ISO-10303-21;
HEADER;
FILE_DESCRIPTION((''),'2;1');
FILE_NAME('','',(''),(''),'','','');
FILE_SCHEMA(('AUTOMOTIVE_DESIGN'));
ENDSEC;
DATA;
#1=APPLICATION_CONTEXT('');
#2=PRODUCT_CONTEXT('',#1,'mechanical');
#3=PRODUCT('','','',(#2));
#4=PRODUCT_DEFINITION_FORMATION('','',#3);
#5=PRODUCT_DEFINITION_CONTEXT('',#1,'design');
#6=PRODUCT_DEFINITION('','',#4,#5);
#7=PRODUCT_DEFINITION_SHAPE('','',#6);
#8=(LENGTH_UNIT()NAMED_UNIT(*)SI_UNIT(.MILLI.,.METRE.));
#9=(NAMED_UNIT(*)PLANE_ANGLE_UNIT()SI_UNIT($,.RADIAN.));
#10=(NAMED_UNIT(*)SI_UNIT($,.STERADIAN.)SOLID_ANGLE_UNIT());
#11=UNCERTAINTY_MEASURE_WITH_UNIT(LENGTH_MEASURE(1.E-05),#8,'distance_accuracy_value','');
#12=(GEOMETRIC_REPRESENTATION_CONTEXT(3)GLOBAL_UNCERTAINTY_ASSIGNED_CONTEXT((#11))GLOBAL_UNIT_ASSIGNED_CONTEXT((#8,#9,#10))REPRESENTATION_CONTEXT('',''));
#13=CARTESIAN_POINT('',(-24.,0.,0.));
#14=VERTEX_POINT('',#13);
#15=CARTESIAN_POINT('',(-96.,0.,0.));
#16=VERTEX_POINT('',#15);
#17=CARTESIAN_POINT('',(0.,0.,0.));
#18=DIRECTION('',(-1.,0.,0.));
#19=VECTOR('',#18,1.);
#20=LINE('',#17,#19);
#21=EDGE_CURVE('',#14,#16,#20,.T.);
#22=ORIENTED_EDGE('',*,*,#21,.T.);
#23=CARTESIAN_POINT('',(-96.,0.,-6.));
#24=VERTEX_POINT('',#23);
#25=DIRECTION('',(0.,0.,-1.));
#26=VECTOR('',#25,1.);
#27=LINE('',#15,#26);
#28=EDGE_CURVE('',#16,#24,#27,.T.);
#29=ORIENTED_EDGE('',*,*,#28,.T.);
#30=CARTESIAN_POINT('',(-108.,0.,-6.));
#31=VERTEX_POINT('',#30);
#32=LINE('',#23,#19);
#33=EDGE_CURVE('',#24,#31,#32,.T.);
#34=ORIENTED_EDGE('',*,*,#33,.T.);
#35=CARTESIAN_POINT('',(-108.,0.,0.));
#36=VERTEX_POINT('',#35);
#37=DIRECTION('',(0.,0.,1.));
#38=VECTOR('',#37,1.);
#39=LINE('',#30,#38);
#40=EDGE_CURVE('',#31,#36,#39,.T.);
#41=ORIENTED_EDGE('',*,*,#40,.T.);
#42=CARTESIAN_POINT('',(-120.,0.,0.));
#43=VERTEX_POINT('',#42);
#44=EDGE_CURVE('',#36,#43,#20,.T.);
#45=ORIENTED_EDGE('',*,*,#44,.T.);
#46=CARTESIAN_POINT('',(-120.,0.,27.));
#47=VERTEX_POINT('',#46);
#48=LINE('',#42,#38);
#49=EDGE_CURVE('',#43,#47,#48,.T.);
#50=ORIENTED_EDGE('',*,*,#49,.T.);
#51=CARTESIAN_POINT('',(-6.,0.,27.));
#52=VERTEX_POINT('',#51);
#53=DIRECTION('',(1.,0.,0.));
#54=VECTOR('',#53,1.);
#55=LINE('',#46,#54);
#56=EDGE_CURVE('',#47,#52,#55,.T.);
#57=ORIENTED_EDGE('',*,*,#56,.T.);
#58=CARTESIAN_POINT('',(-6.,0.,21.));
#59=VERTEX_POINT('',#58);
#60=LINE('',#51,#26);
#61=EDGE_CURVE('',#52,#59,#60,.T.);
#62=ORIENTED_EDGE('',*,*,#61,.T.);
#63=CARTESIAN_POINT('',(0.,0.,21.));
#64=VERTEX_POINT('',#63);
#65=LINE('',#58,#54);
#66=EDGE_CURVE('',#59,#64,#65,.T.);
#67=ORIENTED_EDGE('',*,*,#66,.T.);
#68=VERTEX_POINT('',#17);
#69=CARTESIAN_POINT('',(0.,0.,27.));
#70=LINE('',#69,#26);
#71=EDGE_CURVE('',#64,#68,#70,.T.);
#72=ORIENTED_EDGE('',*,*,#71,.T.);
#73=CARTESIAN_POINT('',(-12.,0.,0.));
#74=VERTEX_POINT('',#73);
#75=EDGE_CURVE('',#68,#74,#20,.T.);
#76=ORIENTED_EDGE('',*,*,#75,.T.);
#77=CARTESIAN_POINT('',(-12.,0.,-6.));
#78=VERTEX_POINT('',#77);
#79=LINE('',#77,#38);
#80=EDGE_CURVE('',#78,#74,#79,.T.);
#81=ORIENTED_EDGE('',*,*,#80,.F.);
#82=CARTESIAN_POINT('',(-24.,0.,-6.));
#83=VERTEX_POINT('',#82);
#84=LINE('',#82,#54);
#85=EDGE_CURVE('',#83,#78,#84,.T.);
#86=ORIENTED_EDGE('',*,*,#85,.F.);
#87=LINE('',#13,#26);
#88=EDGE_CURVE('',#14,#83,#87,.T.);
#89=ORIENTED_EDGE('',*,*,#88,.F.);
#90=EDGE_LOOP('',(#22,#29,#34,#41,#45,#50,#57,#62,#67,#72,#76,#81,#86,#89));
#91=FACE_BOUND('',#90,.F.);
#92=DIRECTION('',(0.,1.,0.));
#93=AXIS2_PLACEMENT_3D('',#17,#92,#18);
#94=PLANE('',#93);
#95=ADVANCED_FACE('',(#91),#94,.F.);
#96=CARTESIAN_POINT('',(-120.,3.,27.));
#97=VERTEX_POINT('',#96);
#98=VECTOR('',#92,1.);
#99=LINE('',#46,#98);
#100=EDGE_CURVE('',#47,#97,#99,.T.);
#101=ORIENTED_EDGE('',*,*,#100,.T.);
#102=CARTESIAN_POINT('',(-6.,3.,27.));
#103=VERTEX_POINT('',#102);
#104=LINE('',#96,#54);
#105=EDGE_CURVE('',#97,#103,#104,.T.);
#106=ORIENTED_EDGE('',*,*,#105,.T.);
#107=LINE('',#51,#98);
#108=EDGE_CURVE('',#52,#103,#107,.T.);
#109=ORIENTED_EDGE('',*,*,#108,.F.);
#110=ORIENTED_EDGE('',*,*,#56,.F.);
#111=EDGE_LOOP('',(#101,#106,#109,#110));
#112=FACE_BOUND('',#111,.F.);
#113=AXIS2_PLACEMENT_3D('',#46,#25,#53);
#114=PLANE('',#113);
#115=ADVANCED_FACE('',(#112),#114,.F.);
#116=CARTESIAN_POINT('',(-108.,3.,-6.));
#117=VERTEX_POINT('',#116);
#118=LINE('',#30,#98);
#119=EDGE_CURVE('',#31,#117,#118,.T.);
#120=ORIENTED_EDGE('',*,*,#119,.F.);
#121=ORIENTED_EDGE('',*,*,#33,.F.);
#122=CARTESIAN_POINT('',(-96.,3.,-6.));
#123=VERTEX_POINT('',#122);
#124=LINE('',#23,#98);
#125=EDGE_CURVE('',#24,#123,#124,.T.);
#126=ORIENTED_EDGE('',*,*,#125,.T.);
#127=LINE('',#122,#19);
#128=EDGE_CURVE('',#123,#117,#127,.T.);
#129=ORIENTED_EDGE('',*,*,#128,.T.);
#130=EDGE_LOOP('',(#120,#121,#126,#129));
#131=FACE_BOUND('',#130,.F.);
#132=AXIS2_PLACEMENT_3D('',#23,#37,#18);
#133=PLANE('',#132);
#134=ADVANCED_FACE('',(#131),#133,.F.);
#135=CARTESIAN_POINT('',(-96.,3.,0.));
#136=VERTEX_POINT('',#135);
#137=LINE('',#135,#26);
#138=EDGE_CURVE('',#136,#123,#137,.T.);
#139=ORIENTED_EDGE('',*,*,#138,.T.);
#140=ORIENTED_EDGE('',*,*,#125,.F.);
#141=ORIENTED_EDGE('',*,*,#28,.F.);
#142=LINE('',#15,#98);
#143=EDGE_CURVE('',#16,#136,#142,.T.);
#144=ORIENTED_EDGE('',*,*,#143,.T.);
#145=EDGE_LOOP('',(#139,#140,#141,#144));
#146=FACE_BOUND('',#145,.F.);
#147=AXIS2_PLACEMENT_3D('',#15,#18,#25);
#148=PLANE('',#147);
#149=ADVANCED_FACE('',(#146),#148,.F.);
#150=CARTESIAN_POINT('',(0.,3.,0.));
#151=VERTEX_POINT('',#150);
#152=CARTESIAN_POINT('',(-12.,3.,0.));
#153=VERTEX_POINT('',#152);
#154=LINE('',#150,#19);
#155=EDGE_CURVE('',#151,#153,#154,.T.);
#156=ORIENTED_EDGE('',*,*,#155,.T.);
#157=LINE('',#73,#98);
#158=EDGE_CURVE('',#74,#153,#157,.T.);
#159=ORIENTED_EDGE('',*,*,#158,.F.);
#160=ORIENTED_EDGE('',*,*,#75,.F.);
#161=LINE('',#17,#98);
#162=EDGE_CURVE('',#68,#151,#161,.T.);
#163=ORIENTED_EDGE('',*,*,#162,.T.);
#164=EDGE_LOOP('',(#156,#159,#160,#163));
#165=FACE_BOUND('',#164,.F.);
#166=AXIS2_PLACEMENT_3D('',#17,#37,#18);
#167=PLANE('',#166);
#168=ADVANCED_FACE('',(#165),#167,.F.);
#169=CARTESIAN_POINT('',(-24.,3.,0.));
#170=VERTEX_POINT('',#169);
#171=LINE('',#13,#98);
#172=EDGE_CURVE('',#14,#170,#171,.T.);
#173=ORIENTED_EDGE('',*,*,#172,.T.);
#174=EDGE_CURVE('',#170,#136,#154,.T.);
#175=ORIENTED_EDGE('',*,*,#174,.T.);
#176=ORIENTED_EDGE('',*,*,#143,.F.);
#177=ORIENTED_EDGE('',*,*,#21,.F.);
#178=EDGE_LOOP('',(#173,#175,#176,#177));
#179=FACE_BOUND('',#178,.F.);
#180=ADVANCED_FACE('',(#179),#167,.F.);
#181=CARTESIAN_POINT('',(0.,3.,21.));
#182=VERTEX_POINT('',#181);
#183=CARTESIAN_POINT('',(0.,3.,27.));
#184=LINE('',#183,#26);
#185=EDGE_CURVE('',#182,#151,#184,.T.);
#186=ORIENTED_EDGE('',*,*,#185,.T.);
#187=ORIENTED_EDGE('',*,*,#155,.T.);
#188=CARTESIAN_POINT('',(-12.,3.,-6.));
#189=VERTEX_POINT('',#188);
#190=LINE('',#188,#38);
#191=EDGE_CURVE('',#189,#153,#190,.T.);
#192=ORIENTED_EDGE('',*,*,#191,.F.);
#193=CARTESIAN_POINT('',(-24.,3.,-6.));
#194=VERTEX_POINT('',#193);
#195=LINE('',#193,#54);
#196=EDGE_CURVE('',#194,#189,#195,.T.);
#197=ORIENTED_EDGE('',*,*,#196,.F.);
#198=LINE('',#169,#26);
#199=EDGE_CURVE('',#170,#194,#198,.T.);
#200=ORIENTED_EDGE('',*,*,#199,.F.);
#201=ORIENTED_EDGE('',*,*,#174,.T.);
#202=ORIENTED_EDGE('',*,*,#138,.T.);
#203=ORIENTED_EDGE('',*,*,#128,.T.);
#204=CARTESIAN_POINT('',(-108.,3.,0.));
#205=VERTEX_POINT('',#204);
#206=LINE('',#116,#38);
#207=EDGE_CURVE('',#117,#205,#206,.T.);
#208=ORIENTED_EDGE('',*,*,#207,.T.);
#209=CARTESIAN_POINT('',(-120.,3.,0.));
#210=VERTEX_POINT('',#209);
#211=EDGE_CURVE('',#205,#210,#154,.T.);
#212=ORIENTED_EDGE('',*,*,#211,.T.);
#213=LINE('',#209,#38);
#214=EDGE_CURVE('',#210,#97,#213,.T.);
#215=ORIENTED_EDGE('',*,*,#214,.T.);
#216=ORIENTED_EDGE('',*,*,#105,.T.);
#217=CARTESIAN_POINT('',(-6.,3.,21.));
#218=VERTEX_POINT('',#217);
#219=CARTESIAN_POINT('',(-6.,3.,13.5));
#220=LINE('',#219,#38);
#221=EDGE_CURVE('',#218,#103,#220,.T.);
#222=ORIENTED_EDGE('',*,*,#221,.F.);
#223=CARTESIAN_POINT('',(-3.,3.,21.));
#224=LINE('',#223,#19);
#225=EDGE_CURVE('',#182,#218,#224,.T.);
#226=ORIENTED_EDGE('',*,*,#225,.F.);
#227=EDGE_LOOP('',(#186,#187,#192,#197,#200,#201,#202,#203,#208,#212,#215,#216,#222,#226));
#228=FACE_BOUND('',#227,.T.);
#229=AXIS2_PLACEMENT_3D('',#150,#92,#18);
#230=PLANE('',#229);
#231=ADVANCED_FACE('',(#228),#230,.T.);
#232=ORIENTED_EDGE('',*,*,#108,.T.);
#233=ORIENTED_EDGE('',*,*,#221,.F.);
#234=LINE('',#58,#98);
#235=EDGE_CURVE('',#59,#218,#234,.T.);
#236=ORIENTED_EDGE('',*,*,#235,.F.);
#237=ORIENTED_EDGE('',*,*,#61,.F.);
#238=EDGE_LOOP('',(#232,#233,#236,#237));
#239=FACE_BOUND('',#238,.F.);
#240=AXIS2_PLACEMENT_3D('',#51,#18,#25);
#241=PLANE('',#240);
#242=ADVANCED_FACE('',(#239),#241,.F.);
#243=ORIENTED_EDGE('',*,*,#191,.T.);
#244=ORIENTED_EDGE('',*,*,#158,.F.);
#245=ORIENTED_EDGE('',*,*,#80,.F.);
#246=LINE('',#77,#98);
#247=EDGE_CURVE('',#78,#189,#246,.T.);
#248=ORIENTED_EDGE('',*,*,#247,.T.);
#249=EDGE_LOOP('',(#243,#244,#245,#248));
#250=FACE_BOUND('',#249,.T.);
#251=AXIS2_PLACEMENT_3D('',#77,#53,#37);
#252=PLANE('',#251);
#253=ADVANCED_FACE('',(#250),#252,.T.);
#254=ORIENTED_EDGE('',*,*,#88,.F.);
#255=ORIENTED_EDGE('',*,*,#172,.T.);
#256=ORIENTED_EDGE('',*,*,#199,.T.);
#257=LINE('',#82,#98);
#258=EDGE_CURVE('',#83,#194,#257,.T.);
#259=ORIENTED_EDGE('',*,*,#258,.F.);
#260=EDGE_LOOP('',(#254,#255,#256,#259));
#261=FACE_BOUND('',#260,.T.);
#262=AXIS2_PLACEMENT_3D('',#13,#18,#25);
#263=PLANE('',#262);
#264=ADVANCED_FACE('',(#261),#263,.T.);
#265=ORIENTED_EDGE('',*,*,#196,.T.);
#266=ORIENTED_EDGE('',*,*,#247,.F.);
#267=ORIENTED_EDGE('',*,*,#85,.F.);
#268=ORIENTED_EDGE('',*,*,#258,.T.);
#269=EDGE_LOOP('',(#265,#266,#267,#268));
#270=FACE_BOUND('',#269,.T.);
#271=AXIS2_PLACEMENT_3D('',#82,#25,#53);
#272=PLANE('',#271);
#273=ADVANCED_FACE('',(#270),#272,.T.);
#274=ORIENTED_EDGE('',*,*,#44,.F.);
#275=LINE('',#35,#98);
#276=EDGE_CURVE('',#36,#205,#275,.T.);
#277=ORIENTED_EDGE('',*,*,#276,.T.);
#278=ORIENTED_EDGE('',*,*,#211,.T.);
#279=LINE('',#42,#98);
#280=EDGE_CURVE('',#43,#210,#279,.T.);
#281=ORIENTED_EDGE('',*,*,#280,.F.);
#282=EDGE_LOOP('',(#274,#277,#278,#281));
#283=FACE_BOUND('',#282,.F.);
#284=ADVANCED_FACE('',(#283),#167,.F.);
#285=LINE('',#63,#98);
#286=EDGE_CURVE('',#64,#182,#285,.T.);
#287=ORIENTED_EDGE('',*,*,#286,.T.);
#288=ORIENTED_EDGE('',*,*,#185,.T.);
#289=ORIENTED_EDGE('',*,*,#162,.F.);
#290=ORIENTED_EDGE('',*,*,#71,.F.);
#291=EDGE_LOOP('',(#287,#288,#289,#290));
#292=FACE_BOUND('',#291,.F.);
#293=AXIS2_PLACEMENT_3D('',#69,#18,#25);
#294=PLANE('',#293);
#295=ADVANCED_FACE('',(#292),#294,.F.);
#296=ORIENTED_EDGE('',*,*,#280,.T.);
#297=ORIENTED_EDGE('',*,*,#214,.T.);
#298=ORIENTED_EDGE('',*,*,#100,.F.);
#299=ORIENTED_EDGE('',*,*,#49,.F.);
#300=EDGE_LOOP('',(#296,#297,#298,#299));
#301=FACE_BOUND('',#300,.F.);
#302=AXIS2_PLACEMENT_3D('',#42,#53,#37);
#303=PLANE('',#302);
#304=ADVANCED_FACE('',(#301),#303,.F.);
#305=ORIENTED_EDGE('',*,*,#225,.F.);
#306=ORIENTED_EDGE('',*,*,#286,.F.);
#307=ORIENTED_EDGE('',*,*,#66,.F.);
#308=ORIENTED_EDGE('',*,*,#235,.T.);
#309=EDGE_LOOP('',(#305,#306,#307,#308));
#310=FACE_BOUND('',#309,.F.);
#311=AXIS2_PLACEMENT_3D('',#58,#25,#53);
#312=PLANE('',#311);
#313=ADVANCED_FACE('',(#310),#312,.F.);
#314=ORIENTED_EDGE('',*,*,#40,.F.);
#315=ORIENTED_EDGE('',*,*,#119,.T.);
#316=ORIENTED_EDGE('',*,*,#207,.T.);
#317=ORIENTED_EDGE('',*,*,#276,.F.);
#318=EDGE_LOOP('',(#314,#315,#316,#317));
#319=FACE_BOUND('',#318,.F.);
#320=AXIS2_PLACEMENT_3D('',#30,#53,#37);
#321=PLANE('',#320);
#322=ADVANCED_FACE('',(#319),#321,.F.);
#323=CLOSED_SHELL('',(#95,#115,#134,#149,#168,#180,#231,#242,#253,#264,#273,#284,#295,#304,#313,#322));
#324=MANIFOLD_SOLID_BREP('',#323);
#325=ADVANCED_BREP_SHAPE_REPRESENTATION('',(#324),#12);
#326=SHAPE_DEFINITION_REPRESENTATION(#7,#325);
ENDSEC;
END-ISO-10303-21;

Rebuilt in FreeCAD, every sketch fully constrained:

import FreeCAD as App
import Part
import Sketcher
from FreeCAD import Vector
Q = App.Units.Quantity


def add_polygon(sketch, points):
    """Adds a closed chain of lines whose ends are joined by coincident constraints."""
    first, n = sketch.GeometryCount, len(points)
    for a, b in zip(points, points[1:] + points[:1]):
        sketch.addGeometry(Part.LineSegment(App.Vector(*a, 0), App.Vector(*b, 0)), False)
    for i in range(n):
        sketch.addConstraint(Sketcher.Constraint("Coincident", first + i, 2, first + (i + 1) % n, 1))

doc = App.newDocument("Part")
body = doc.addObject("PartDesign::Body", "Body")

# Sketch on XZ plane
sketch1 = body.newObject("Sketcher::SketchObject", "Sketch")
sketch1.AttachmentSupport = (doc.getObject("XZ_Plane"), [""])
sketch1.MapMode = "FlatFace"
add_polygon(sketch1, [(0, 27), (0, 0), (-120, 0), (-120, 27)])  # lines 0-3
sketch1.addConstraint([
    Sketcher.Constraint("Vertical", 0),
    Sketcher.Constraint("Horizontal", 1),
    Sketcher.Constraint("Vertical", 2),
    Sketcher.Constraint("Horizontal", 3),
    Sketcher.Constraint("Coincident", 0, 2, -1, 1),
    Sketcher.Constraint("DistanceX", 1, 2, 1, 1, Q("120 mm")),
    Sketcher.Constraint("DistanceY", 0, 2, 0, 1, Q("27 mm")),
])
pad1 = body.newObject("PartDesign::Pad", "Pad")
pad1.Profile = sketch1
pad1.Length = 3
pad1.Reversed = True

# Sketch on XZ plane
sketch2 = body.newObject("Sketcher::SketchObject", "Sketch001")
sketch2.AttachmentSupport = (doc.getObject("XZ_Plane"), [""])
sketch2.MapMode = "FlatFace"
add_polygon(sketch2, [(0, 27), (-6, 27), (-6, 21), (0, 21)])  # lines 0-3
sketch2.addConstraint([
    Sketcher.Constraint("Horizontal", 0),
    Sketcher.Constraint("Vertical", 1),
    Sketcher.Constraint("Horizontal", 2),
    Sketcher.Constraint("Vertical", 3),
    Sketcher.Constraint("PointOnObject", 2, 2, -2),
    Sketcher.Constraint("Equal", 2, 1),
    Sketcher.Constraint("DistanceX", 0, 2, 0, 1, Q("6 mm")),
    Sketcher.Constraint("DistanceY", -1, 1, 0, 2, Q("27 mm")),
])
pocket1 = body.newObject("PartDesign::Pocket", "Pocket")
pocket1.Profile = sketch2
pocket1.Type = "ThroughAll"
pocket1.Midplane = True

# Sketch on XZ plane
sketch3 = body.newObject("Sketcher::SketchObject", "Sketch002")
sketch3.AttachmentSupport = (doc.getObject("XZ_Plane"), [""])
sketch3.MapMode = "FlatFace"
add_polygon(sketch3, [(-12, -6), (-12, 0), (-24, 0), (-24, -6)])  # lines 0-3
add_polygon(sketch3, [(-96, -6), (-96, 0), (-108, 0), (-108, -6)])  # lines 4-7
sketch3.addConstraint([
    Sketcher.Constraint("Vertical", 0),
    Sketcher.Constraint("Horizontal", 1),
    Sketcher.Constraint("Vertical", 2),
    Sketcher.Constraint("Horizontal", 3),
    Sketcher.Constraint("Vertical", 4),
    Sketcher.Constraint("Horizontal", 5),
    Sketcher.Constraint("Vertical", 6),
    Sketcher.Constraint("Horizontal", 7),
    Sketcher.Constraint("PointOnObject", 0, 2, -1),
    Sketcher.Constraint("PointOnObject", 4, 2, -1),
    Sketcher.Constraint("Horizontal", 3, 2, 6, 2),
    Sketcher.Constraint("Equal", 3, 5),
    Sketcher.Constraint("DistanceX", 1, 2, 1, 1, Q("12 mm")),
    Sketcher.Constraint("DistanceY", 0, 1, 0, 2, Q("6 mm")),
    Sketcher.Constraint("DistanceX", 0, 2, -1, 1, Q("12 mm")),
    Sketcher.Constraint("DistanceX", 4, 2, -1, 1, Q("96 mm")),
])
pad2 = body.newObject("PartDesign::Pad", "Pad001")
pad2.Profile = sketch3
pad2.Length = 3
pad2.Reversed = True

doc.recompute()
